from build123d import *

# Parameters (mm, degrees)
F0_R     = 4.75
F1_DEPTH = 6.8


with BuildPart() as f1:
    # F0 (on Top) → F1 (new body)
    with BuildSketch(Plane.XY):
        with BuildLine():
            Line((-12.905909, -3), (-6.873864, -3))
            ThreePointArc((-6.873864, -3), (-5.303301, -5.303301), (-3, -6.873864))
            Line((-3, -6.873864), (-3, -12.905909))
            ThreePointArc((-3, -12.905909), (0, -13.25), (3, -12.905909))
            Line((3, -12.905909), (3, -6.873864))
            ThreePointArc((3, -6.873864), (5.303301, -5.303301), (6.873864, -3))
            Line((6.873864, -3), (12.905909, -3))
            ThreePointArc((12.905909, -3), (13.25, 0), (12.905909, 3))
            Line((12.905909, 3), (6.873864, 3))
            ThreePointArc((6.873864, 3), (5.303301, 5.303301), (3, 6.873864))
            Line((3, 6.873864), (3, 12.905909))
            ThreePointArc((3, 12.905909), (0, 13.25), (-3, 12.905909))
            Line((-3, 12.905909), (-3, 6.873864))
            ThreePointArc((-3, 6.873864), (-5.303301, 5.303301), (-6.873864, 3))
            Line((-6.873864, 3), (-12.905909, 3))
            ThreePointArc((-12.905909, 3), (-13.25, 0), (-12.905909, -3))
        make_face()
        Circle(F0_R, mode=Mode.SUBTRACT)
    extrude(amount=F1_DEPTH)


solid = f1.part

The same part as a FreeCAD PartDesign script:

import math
import FreeCAD as App
import Part
import Sketcher

V = App.Vector

doc = App.newDocument("Part")
body = doc.addObject("PartDesign::Body", "Body")

# Sketch on XY plane
sketch1 = body.newObject("Sketcher::SketchObject", "Sketch")
sketch1.AttachmentSupport = (doc.getObject("XY_Plane"), [""])
sketch1.MapMode = "FlatFace"
sketch1.addGeometry([
    Part.LineSegment(V(-12.905909, -3, 0), V(-6.873864, -3, 0)),  # 0
    Part.ArcOfCircle(Part.Circle(V(0.000002, 0.000002, 0), V(0, 0, 1), 7.500003), math.radians(-156.421814), math.radians(-113.578186)),  # 1
    Part.LineSegment(V(-3, -6.873864, 0), V(-3, -12.905909, 0)),  # 2
    Part.ArcOfCircle(Part.Circle(V(0, -0.000019, 0), V(0, 0, 1), 13.249981), math.radians(-103.086124), math.radians(-76.913876)),  # 3
    Part.LineSegment(V(3, -12.905909, 0), V(3, -6.873864, 0)),  # 4
    Part.ArcOfCircle(Part.Circle(V(-0.000002, 0.000002, 0), V(0, 0, 1), 7.500003), math.radians(-66.421814), math.radians(-23.578186)),  # 5
    Part.LineSegment(V(6.873864, -3, 0), V(12.905909, -3, 0)),  # 6
    Part.ArcOfCircle(Part.Circle(V(0.000019, 0, 0), V(0, 0, 1), 13.249981), math.radians(-13.086124), math.radians(13.086124)),  # 7
    Part.LineSegment(V(12.905909, 3, 0), V(6.873864, 3, 0)),  # 8
    Part.ArcOfCircle(Part.Circle(V(-0.000002, -0.000002, 0), V(0, 0, 1), 7.500003), math.radians(23.578186), math.radians(66.421814)),  # 9
    Part.LineSegment(V(3, 6.873864, 0), V(3, 12.905909, 0)),  # 10
    Part.ArcOfCircle(Part.Circle(V(0, 0.000019, 0), V(0, 0, 1), 13.249981), math.radians(76.913876), math.radians(103.086124)),  # 11
    Part.LineSegment(V(-3, 12.905909, 0), V(-3, 6.873864, 0)),  # 12
    Part.ArcOfCircle(Part.Circle(V(0.000002, -0.000002, 0), V(0, 0, 1), 7.500003), math.radians(113.578186), math.radians(156.421814)),  # 13
    Part.LineSegment(V(-6.873864, 3, 0), V(-12.905909, 3, 0)),  # 14
    Part.ArcOfCircle(Part.Circle(V(-0.000019, 0, 0), V(0, 0, 1), 13.249981), math.radians(166.913876), math.radians(193.086124)),  # 15
    Part.Circle(V(0, 0, 0), V(0, 0, 1), 4.75),  # 16
], False)
sketch1.addConstraint([
    Sketcher.Constraint("Coincident", 0, 2, 1, 1),
    Sketcher.Constraint("Coincident", 1, 2, 2, 1),
    Sketcher.Constraint("Coincident", 2, 2, 3, 1),
    Sketcher.Constraint("Coincident", 3, 2, 4, 1),
    Sketcher.Constraint("Coincident", 4, 2, 5, 1),
    Sketcher.Constraint("Coincident", 5, 2, 6, 1),
    Sketcher.Constraint("Coincident", 6, 2, 7, 1),
    Sketcher.Constraint("Coincident", 7, 2, 8, 1),
    Sketcher.Constraint("Coincident", 8, 2, 9, 1),
    Sketcher.Constraint("Coincident", 9, 2, 10, 1),
    Sketcher.Constraint("Coincident", 10, 2, 11, 1),
    Sketcher.Constraint("Coincident", 11, 2, 12, 1),
    Sketcher.Constraint("Coincident", 12, 2, 13, 1),
    Sketcher.Constraint("Coincident", 13, 2, 14, 1),
    Sketcher.Constraint("Coincident", 14, 2, 15, 1),
    Sketcher.Constraint("Coincident", 15, 2, 0, 1),
    Sketcher.Constraint("Horizontal", 0),
    Sketcher.Constraint("Vertical", 2),
    Sketcher.Constraint("Vertical", 4),
    Sketcher.Constraint("Horizontal", 6),
    Sketcher.Constraint("Horizontal", 8),
    Sketcher.Constraint("Vertical", 10),
    Sketcher.Constraint("Vertical", 12),
    Sketcher.Constraint("Horizontal", 14),
    Sketcher.Constraint("Coincident", 1, 3, -1, 1),
    Sketcher.Constraint("Coincident", 5, 3, -1, 1),
    Sketcher.Constraint("Coincident", 9, 3, -1, 1),
    Sketcher.Constraint("Coincident", 13, 3, -1, 1),
    Sketcher.Constraint("Coincident", 16, 3, -1, 1),
    Sketcher.Constraint("Equal", 1, 5),
    Sketcher.Constraint("Equal", 3, 7),
    Sketcher.Constraint("Equal", 5, 9),
    Sketcher.Constraint("Equal", 7, 11),
    Sketcher.Constraint("Equal", 9, 13),
    Sketcher.Constraint("Equal", 11, 15),
    Sketcher.Constraint("Symmetric", 3, 3, 11, 3, -1, 1),
    Sketcher.Constraint("Symmetric", 7, 3, 15, 3, -1, 1),
    Sketcher.Constraint("Symmetric", 2, 2, 3, 2, -2),
    Sketcher.Constraint("Symmetric", 7, 2, 14, 2, -2),
    Sketcher.Constraint("Horizontal", 0, 2, 5, 2),
    Sketcher.Constraint("Horizontal", 10, 2, 11, 2),
    Sketcher.Constraint("Vertical", 6, 2, 7, 2),
    Sketcher.Constraint("Vertical", 4, 2, 9, 2),
    Sketcher.Constraint("Equal", 14, 2),
    Sketcher.Constraint("Diameter", 16, 9.5),
    Sketcher.Constraint("DistanceY", 0, 2, -1, 1, 3.0),
    Sketcher.Constraint("DistanceX", 1, 2, -1, 1, 3.0),
    Sketcher.Constraint("Radius", 3, 13.249981),
    Sketcher.Constraint("Radius", 1, 7.500003),
    Sketcher.Constraint("DistanceX", 0, 1, 0, 2, 6.032045),
])
pad1 = body.newObject("PartDesign::Pad", "Pad")
pad1.Profile = sketch1
pad1.Length = 6.8

doc.recompute()
